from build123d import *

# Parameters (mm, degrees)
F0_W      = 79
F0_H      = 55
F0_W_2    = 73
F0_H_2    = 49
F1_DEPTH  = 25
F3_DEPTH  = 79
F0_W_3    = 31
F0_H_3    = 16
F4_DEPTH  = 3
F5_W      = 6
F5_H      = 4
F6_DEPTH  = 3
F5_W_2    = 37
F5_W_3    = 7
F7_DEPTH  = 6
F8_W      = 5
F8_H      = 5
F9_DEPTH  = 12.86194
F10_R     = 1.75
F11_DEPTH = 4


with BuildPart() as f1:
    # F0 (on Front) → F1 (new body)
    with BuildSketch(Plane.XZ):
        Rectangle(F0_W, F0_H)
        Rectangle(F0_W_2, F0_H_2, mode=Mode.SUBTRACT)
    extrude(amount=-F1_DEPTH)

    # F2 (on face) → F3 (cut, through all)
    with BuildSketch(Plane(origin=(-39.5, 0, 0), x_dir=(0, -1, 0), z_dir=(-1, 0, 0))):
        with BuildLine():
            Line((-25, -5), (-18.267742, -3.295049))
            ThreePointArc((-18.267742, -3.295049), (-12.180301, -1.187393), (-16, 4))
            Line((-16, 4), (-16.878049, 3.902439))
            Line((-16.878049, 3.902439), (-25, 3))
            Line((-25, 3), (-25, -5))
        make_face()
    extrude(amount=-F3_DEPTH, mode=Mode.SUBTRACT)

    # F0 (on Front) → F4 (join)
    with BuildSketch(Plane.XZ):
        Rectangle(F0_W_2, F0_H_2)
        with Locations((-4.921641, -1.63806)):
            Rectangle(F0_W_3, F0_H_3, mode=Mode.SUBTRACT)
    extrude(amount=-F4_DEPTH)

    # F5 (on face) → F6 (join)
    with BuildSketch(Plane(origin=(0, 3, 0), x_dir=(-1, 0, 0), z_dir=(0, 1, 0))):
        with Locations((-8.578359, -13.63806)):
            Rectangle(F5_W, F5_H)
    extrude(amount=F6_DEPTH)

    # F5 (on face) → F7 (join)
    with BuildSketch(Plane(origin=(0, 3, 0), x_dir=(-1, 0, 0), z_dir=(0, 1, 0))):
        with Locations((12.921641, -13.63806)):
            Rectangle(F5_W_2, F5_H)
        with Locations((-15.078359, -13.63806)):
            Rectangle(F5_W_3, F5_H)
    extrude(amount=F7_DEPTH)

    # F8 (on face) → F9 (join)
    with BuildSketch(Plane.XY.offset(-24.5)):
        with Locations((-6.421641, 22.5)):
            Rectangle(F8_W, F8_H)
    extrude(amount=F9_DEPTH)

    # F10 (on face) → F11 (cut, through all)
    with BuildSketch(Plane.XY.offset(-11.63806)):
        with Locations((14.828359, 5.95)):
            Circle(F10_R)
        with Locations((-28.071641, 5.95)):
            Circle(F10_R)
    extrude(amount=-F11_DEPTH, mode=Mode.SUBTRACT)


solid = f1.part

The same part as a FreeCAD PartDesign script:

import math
import FreeCAD as App
import Part
import Sketcher


def add_polygon(sketch, points):
    """Adds a closed chain of lines whose ends are joined by coincident constraints."""
    first, n = sketch.GeometryCount, len(points)
    for a, b in zip(points, points[1:] + points[:1]):
        sketch.addGeometry(Part.LineSegment(App.Vector(*a, 0), App.Vector(*b, 0)), False)
    for i in range(n):
        sketch.addConstraint(Sketcher.Constraint("Coincident", first + i, 2, first + (i + 1) % n, 1))

doc = App.newDocument("Part")
body = doc.addObject("PartDesign::Body", "Body")

sketch1 = body.newObject("Sketcher::SketchObject", "Sketch")
sketch1.AttachmentSupport = (doc.getObject("XZ_Plane"), [""])
sketch1.MapMode = "FlatFace"
add_polygon(sketch1, [(-40, 28), (-40, -28), (40, -28), (40, 28)])
add_polygon(sketch1, [(36, -24), (-36, -24), (-36, 24), (36, 24)])
sketch1.addConstraint([
    Sketcher.Constraint("Vertical", 0),
    Sketcher.Constraint("Horizontal", 1),
    Sketcher.Constraint("Vertical", 2),
    Sketcher.Constraint("Horizontal", 3),
    Sketcher.Constraint("Horizontal", 4),
    Sketcher.Constraint("Vertical", 5),
    Sketcher.Constraint("Horizontal", 6),
    Sketcher.Constraint("Vertical", 7),
    Sketcher.Constraint("Symmetric", 0, 2, 2, 2, -1, 1),
    Sketcher.Constraint("Symmetric", 4, 2, 6, 2, -1, 1),
    Sketcher.Constraint("DistanceX", 1, 1, 1, 2, 79.0),
    Sketcher.Constraint("DistanceX", 4, 2, 4, 1, 73.0),
    Sketcher.Constraint("DistanceY", 0, 2, 0, 1, 55.0),
    Sketcher.Constraint("DistanceY", 5, 1, 5, 2, 49.0),
])
pad1 = body.newObject("PartDesign::Pad", "Pad")
pad1.Profile = sketch1
pad1.Length = 25
pad1.Reversed = True

sketch2 = body.newObject("Sketcher::SketchObject", "Sketch001")
sketch2.AttachmentSupport = (doc.getObject("YZ_Plane"), [""])
sketch2.MapMode = "FlatFace"
sketch2.AttachmentOffset = App.Placement(App.Vector(0, 0, -39.5), App.Rotation())
sketch2.addGeometry([
    Part.LineSegment(App.Vector(25, -5, 0), App.Vector(18.3, -3.3, 0)),
    Part.ArcOfCircle(Part.Circle(App.Vector(16, 0, 0), App.Vector(0, 0, 1), 4), math.radians(90), math.radians(305)),
    Part.LineSegment(App.Vector(16, 4, 0), App.Vector(25, 3, 0)),
    Part.LineSegment(App.Vector(25, 3, 0), App.Vector(25, -5, 0)),
], False)
sketch2.addConstraint([
    Sketcher.Constraint("Coincident", 0, 2, 1, 2),
    Sketcher.Constraint("Coincident", 1, 1, 2, 1),
    Sketcher.Constraint("Coincident", 2, 2, 3, 1),
    Sketcher.Constraint("Coincident", 3, 2, 0, 1),
    Sketcher.Constraint("Vertical", 3),
    Sketcher.Constraint("PointOnObject", 1, 3, -1),
    Sketcher.Constraint("Radius", 1, 4.0),
    Sketcher.Constraint("DistanceY", 3, 2, 3, 1, 8.0),
    Sketcher.Constraint("DistanceX", -1, 1, 1, 3, 16.0),
    Sketcher.Constraint("DistanceX", -1, 1, 1, 1, 16.0),
    Sketcher.Constraint("DistanceX", -1, 1, 2, 2, 25.0),
    Sketcher.Constraint("DistanceY", -1, 1, 2, 2, 3.0),
    Sketcher.Constraint("DistanceX", -1, 1, 0, 2, 18.267742),
])
pocket1 = body.newObject("PartDesign::Pocket", "Pocket")
pocket1.Profile = sketch2
pocket1.Type = "ThroughAll"
pocket1.Reversed = True

sketch3 = body.newObject("Sketcher::SketchObject", "Sketch002")
sketch3.AttachmentSupport = (doc.getObject("XZ_Plane"), [""])
sketch3.MapMode = "FlatFace"
add_polygon(sketch3, [(-36, 24), (-36, -24), (36, -24), (36, 24)])
add_polygon(sketch3, [(11, -10), (-20, -10), (-20, 6), (11, 6)])
sketch3.addConstraint([
    Sketcher.Constraint("Vertical", 0),
    Sketcher.Constraint("Horizontal", 1),
    Sketcher.Constraint("Vertical", 2),
    Sketcher.Constraint("Horizontal", 3),
    Sketcher.Constraint("Horizontal", 4),
    Sketcher.Constraint("Vertical", 5),
    Sketcher.Constraint("Horizontal", 6),
    Sketcher.Constraint("Vertical", 7),
    Sketcher.Constraint("Symmetric", 0, 2, 2, 2, -1, 1),
    Sketcher.Constraint("DistanceX", 1, 1, 1, 2, 73.0),
    Sketcher.Constraint("DistanceX", 4, 2, 4, 1, 31.0),
    Sketcher.Constraint("DistanceY", 0, 2, 0, 1, 49.0),
    Sketcher.Constraint("DistanceY", 5, 1, 5, 2, 16.0),
    Sketcher.Constraint("DistanceX", 4, 2, -1, 1, 20.421641),
    Sketcher.Constraint("DistanceY", 4, 2, -1, 1, 9.63806),
])
pad2 = body.newObject("PartDesign::Pad", "Pad001")
pad2.Profile = sketch3
pad2.Length = 3
pad2.Reversed = True

sketch4 = body.newObject("Sketcher::SketchObject", "Sketch003")
sketch4.AttachmentSupport = (doc.getObject("XZ_Plane"), [""])
sketch4.MapMode = "FlatFace"
sketch4.AttachmentOffset = App.Placement(App.Vector(0, 0, -3), App.Rotation())
add_polygon(sketch4, [(11.6, -11.6), (11.6, -15.6), (5.6, -15.6), (5.6, -11.6)])
sketch4.addConstraint([
    Sketcher.Constraint("Vertical", 0),
    Sketcher.Constraint("Horizontal", 1),
    Sketcher.Constraint("Vertical", 2),
    Sketcher.Constraint("Horizontal", 3),
    Sketcher.Constraint("DistanceX", 1, 2, 1, 1, 6.0),
    Sketcher.Constraint("DistanceY", 0, 2, 0, 1, 4.0),
    Sketcher.Constraint("DistanceX", -1, 1, 0, 2, 11.578359),
    Sketcher.Constraint("DistanceY", 0, 2, -1, 1, 15.63806),
])
pad3 = body.newObject("PartDesign::Pad", "Pad002")
pad3.Profile = sketch4
pad3.Length = 3
pad3.Reversed = True

sketch5 = body.newObject("Sketcher::SketchObject", "Sketch004")
sketch5.AttachmentSupport = (doc.getObject("XZ_Plane"), [""])
sketch5.MapMode = "FlatFace"
sketch5.AttachmentOffset = App.Placement(App.Vector(0, 0, -3), App.Rotation())
add_polygon(sketch5, [(5.6, -11.6), (5.6, -15.6), (-31.4, -15.6), (-31.4, -11.6)])
add_polygon(sketch5, [(18.6, -11.6), (18.6, -15.6), (11.6, -15.6), (11.6, -11.6)])
sketch5.addConstraint([
    Sketcher.Constraint("Vertical", 0),
    Sketcher.Constraint("Horizontal", 1),
    Sketcher.Constraint("Vertical", 2),
    Sketcher.Constraint("Horizontal", 3),
    Sketcher.Constraint("Vertical", 4),
    Sketcher.Constraint("Horizontal", 5),
    Sketcher.Constraint("Vertical", 6),
    Sketcher.Constraint("Horizontal", 7),
    Sketcher.Constraint("Horizontal", 1, 2, 4, 2),
    Sketcher.Constraint("Horizontal", 3, 2, 6, 2),
    Sketcher.Constraint("DistanceX", 1, 2, 1, 1, 37.0),
    Sketcher.Constraint("DistanceX", 5, 2, 5, 1, 7.0),
    Sketcher.Constraint("DistanceY", 0, 2, 0, 1, 4.0),
    Sketcher.Constraint("DistanceX", 0, 2, 4, 2, 13.0),
    Sketcher.Constraint("DistanceX", -1, 1, 0, 2, 5.578359),
    Sketcher.Constraint("DistanceY", 0, 2, -1, 1, 15.63806),
])
pad4 = body.newObject("PartDesign::Pad", "Pad003")
pad4.Profile = sketch5
pad4.Length = 6
pad4.Reversed = True

sketch6 = body.newObject("Sketcher::SketchObject", "Sketch005")
sketch6.AttachmentSupport = (doc.getObject("XY_Plane"), [""])
sketch6.MapMode = "FlatFace"
sketch6.AttachmentOffset = App.Placement(App.Vector(0, 0, -24.5), App.Rotation())
add_polygon(sketch6, [(-8.9, 25), (-8.9, 20), (-3.9, 20), (-3.9, 25)])
sketch6.addConstraint([
    Sketcher.Constraint("Vertical", 0),
    Sketcher.Constraint("Horizontal", 1),
    Sketcher.Constraint("Vertical", 2),
    Sketcher.Constraint("Horizontal", 3),
    Sketcher.Constraint("Equal", 3, 0),
    Sketcher.Constraint("DistanceX", 1, 1, 1, 2, 5.0),
    Sketcher.Constraint("DistanceY", -1, 1, 0, 2, 20.0),
    Sketcher.Constraint("DistanceX", 0, 2, -1, 1, 8.921641),
])
pad5 = body.newObject("PartDesign::Pad", "Pad004")
pad5.Profile = sketch6
pad5.Length = 12.86194

sketch7 = body.newObject("Sketcher::SketchObject", "Sketch006")
sketch7.AttachmentSupport = (doc.getObject("XY_Plane"), [""])
sketch7.MapMode = "FlatFace"
sketch7.AttachmentOffset = App.Placement(App.Vector(0, 0, -11.63806), App.Rotation())
sketch7.addGeometry([
    Part.Circle(App.Vector(14.8, 6, 0), App.Vector(0, 0, 1), 1.8),
    Part.Circle(App.Vector(-28.1, 6, 0), App.Vector(0, 0, 1), 1.8),
], False)
sketch7.addConstraint([
    Sketcher.Constraint("Equal", 0, 1),
    Sketcher.Constraint("Horizontal", 0, 3, 1, 3),
    Sketcher.Constraint("Diameter", 0, 3.5),
    Sketcher.Constraint("DistanceX", 1, 3, 0, 3, 42.9),
    Sketcher.Constraint("DistanceY", -1, 1, 0, 3, 5.95),
    Sketcher.Constraint("DistanceX", -1, 1, 0, 3, 14.828359),
])
pocket2 = body.newObject("PartDesign::Pocket", "Pocket001")
pocket2.Profile = sketch7
pocket2.Length = 4

doc.recompute()
